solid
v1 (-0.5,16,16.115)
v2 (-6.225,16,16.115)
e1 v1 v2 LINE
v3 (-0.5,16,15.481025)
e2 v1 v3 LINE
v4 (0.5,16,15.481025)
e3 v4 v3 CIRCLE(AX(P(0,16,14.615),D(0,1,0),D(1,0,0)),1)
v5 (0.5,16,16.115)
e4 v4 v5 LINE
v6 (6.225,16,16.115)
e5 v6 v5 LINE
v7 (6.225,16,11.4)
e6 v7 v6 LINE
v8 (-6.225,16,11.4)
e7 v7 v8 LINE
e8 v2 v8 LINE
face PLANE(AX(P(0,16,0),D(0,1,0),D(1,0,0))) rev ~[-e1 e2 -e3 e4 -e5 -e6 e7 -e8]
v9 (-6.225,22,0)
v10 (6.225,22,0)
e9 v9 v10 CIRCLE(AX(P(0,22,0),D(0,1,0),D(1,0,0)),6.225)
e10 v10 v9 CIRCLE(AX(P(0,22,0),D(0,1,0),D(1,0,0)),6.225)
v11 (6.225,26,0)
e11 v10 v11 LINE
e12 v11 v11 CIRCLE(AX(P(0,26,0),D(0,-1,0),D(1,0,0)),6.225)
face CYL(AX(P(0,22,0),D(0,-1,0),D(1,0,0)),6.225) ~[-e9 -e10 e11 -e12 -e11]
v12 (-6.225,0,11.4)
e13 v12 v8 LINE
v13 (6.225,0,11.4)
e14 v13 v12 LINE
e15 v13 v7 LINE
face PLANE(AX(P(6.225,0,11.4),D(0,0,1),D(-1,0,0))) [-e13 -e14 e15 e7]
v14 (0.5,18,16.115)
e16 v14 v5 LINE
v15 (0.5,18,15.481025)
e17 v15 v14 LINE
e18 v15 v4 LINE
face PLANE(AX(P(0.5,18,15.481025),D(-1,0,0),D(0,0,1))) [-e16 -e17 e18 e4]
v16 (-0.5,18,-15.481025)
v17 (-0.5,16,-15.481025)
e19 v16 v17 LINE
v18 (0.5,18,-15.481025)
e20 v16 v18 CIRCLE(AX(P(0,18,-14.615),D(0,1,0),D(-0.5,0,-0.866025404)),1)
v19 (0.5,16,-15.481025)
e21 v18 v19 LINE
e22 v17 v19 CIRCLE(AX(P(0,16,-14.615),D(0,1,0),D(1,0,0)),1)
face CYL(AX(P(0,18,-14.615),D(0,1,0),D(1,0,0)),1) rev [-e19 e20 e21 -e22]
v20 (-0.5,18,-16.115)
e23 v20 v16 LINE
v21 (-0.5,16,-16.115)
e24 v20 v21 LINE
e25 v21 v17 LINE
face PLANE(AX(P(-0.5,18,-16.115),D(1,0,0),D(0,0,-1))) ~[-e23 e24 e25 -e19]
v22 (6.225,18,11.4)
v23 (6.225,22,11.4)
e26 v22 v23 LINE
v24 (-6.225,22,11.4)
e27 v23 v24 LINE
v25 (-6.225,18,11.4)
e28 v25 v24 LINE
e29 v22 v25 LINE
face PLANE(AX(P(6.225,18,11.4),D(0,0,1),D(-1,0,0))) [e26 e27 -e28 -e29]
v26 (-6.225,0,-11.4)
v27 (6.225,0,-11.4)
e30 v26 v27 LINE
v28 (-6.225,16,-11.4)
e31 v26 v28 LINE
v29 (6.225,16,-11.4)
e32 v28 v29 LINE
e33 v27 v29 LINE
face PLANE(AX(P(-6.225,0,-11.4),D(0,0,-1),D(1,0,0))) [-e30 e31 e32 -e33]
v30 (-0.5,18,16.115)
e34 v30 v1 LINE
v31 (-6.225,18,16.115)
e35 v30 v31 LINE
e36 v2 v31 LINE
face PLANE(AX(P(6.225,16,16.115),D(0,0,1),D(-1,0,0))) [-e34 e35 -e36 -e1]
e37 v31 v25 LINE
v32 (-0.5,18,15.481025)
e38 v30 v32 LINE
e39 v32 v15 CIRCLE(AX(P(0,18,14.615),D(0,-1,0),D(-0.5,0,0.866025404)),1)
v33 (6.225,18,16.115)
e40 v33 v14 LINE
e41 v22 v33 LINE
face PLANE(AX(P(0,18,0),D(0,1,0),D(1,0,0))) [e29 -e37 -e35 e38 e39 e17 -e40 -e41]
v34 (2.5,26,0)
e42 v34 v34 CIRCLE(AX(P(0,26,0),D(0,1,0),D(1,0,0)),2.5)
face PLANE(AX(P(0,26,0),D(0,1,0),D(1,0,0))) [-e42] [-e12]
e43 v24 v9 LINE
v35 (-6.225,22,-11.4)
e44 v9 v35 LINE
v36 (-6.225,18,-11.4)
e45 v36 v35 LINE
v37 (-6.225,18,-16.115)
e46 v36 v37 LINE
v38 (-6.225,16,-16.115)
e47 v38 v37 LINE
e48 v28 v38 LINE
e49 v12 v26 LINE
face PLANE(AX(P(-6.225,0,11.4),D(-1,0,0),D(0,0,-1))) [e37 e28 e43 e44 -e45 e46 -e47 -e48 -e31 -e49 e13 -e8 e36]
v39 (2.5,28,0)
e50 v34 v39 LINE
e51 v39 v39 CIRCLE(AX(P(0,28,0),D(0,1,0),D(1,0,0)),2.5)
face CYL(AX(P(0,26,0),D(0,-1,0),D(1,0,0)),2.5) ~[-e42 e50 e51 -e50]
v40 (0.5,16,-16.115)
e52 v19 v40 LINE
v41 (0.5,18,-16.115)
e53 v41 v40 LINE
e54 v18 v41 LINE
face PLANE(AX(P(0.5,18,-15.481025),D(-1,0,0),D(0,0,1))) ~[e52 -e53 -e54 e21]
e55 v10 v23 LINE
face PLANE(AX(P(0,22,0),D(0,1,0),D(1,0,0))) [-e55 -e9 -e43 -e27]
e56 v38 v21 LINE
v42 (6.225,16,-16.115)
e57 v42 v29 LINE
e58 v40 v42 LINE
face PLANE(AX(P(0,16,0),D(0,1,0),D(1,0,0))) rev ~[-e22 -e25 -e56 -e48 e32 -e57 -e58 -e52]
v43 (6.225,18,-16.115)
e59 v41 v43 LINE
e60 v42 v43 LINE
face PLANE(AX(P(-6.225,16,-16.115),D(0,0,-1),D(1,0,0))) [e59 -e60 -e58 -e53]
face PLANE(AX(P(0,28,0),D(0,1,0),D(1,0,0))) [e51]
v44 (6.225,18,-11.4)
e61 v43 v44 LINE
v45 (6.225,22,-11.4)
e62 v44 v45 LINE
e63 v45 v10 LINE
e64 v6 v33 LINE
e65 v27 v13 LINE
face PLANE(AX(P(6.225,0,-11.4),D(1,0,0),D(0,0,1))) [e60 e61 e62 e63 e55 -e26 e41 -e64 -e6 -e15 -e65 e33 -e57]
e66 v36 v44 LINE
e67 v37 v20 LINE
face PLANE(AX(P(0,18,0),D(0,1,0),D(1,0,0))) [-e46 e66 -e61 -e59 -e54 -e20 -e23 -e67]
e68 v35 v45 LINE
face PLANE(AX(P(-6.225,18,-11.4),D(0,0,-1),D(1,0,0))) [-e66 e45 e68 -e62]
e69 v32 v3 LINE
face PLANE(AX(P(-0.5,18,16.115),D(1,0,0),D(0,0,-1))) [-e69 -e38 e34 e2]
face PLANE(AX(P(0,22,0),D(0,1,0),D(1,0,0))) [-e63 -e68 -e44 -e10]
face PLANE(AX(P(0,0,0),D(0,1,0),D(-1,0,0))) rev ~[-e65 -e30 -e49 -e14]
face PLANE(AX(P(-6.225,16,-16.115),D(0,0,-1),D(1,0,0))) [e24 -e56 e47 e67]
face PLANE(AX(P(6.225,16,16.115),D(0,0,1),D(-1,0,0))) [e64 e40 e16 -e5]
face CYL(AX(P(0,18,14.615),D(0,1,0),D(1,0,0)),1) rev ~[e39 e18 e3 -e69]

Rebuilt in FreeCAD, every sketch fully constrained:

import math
import FreeCAD as App
import Part
import Sketcher

V = App.Vector
Q = App.Units.Quantity


def add_polygon(sketch, points):
    """Adds a closed chain of lines whose ends are joined by coincident constraints."""
    first, n = sketch.GeometryCount, len(points)
    for a, b in zip(points, points[1:] + points[:1]):
        sketch.addGeometry(Part.LineSegment(App.Vector(*a, 0), App.Vector(*b, 0)), False)
    for i in range(n):
        sketch.addConstraint(Sketcher.Constraint("Coincident", first + i, 2, first + (i + 1) % n, 1))

doc = App.newDocument("Part")
body = doc.addObject("PartDesign::Body", "Body")

sketch1 = body.newObject("Sketcher::SketchObject", "Sketch")
sketch1.AttachmentSupport = (doc.getObject("XZ_Plane"), [""])
sketch1.MapMode = "FlatFace"
add_polygon(sketch1, [(6, -11), (-6, -11), (-6, 11), (6, 11)])
sketch1.addConstraint(Sketcher.Constraint("Horizontal", 0))
sketch1.addConstraint(Sketcher.Constraint("Vertical", 1))
sketch1.addConstraint(Sketcher.Constraint("Horizontal", 2))
sketch1.addConstraint(Sketcher.Constraint("Vertical", 3))
sketch1.addConstraint(Sketcher.Constraint("Symmetric", 0, 2, 2, 2, -1, 1))
sketch1.addConstraint(Sketcher.Constraint("DistanceY", 1, 1, 1, 2, Q("22.8 mm")))
sketch1.addConstraint(Sketcher.Constraint("DistanceX", 0, 2, 0, 1, Q("12.45 mm")))
pad1 = body.newObject("PartDesign::Pad", "Pad")
pad1.Profile = sketch1
pad1.Length = 16
pad1.Reversed = True

sketch2 = body.newObject("Sketcher::SketchObject", "Sketch001")
sketch2.AttachmentSupport = (doc.getObject("XZ_Plane"), [""])
sketch2.MapMode = "FlatFace"
sketch2.AttachmentOffset = App.Placement(V(0, 0, -16), App.Rotation())
add_polygon(sketch2, [(-6, -16), (-6, 16), (6, 16), (6, -16)])
sketch2.addConstraint(Sketcher.Constraint("Vertical", 0))
sketch2.addConstraint(Sketcher.Constraint("Horizontal", 1))
sketch2.addConstraint(Sketcher.Constraint("Vertical", 2))
sketch2.addConstraint(Sketcher.Constraint("Horizontal", 3))
sketch2.addConstraint(Sketcher.Constraint("Symmetric", 0, 2, 2, 2, -1, 1))
sketch2.addConstraint(Sketcher.Constraint("DistanceY", 0, 1, 0, 2, Q("32.23 mm")))
sketch2.addConstraint(Sketcher.Constraint("DistanceX", 1, 1, 1, 2, Q("12.45 mm")))
pad2 = body.newObject("PartDesign::Pad", "Pad001")
pad2.Profile = sketch2
pad2.Length = 2
pad2.Reversed = True

sketch3 = body.newObject("Sketcher::SketchObject", "Sketch002")
sketch3.AttachmentSupport = (doc.getObject("XZ_Plane"), [""])
sketch3.MapMode = "FlatFace"
sketch3.AttachmentOffset = App.Placement(V(0, 0, -18), App.Rotation())
add_polygon(sketch3, [(6, -11), (-6, -11), (-6, 11), (6, 11)])
sketch3.addConstraint(Sketcher.Constraint("Horizontal", 0))
sketch3.addConstraint(Sketcher.Constraint("Vertical", 1))
sketch3.addConstraint(Sketcher.Constraint("Horizontal", 2))
sketch3.addConstraint(Sketcher.Constraint("Vertical", 3))
sketch3.addConstraint(Sketcher.Constraint("Symmetric", 0, 2, 2, 2, -1, 1))
sketch3.addConstraint(Sketcher.Constraint("DistanceY", 1, 1, 1, 2, Q("22.8 mm")))
sketch3.addConstraint(Sketcher.Constraint("DistanceX", 0, 2, 0, 1, Q("12.45 mm")))
pad3 = body.newObject("PartDesign::Pad", "Pad002")
pad3.Profile = sketch3
pad3.Length = 4
pad3.Reversed = True

sketch4 = body.newObject("Sketcher::SketchObject", "Sketch003")
sketch4.AttachmentSupport = (doc.getObject("XZ_Plane"), [""])
sketch4.MapMode = "FlatFace"
sketch4.AttachmentOffset = App.Placement(V(0, 0, -22), App.Rotation())
sketch4.addGeometry(Part.Circle(V(0, 0, 0), V(0, 0, 1), 6), False)
sketch4.addConstraint(Sketcher.Constraint("Coincident", 0, 3, -1, 1))
sketch4.addConstraint(Sketcher.Constraint("Diameter", 0, Q("12.45 mm")))
pad4 = body.newObject("PartDesign::Pad", "Pad003")
pad4.Profile = sketch4
pad4.Length = 4
pad4.Reversed = True

sketch5 = body.newObject("Sketcher::SketchObject", "Sketch004")
sketch5.AttachmentSupport = (doc.getObject("XZ_Plane"), [""])
sketch5.MapMode = "FlatFace"
sketch5.AttachmentOffset = App.Placement(V(0, 0, -18), App.Rotation())
sketch5.addGeometry(Part.LineSegment(V(-0.5, 15.5, 0), V(-0.5, 16.1, 0)), False)
sketch5.addGeometry(Part.LineSegment(V(-0.5, 16.1, 0), V(0.5, 16.1, 0)), False)
sketch5.addGeometry(Part.LineSegment(V(0.5, 16.1, 0), V(0.5, 15.5, 0)), False)
sketch5.addGeometry(Part.ArcOfCircle(Part.Circle(V(0, 14.6, 0), V(0, 0, 1), 1), math.radians(120), math.radians(420)), False)
sketch5.addConstraint(Sketcher.Constraint("Coincident", 0, 2, 1, 1))
sketch5.addConstraint(Sketcher.Constraint("Coincident", 1, 2, 2, 1))
sketch5.addConstraint(Sketcher.Constraint("Coincident", 2, 2, 3, 2))
sketch5.addConstraint(Sketcher.Constraint("Coincident", 3, 1, 0, 1))
sketch5.addConstraint(Sketcher.Constraint("Vertical", 0))
sketch5.addConstraint(Sketcher.Constraint("Horizontal", 1))
sketch5.addConstraint(Sketcher.Constraint("Vertical", 2))
sketch5.addConstraint(Sketcher.Constraint("Symmetric", 2, 2, 3, 1, -2))
sketch5.addConstraint(Sketcher.Constraint("Radius", 3, Q("1 mm")))
sketch5.addConstraint(Sketcher.Constraint("DistanceX", 1, 1, 1, 2, Q("1 mm")))
sketch5.addConstraint(Sketcher.Constraint("DistanceY", 3, 3, 0, 2, Q("1.5 mm")))
sketch5.addConstraint(Sketcher.Constraint("DistanceY", -1, 1, 3, 3, Q("14.615 mm")))
pocket1 = body.newObject("PartDesign::Pocket", "Pocket")
pocket1.Profile = sketch5
pocket1.Length = 4
pocket1.Reversed = True
doc.recompute()

mirrored = body.newObject("PartDesign::Mirrored", "Mirrored")
mirrored.Originals = [pocket1]
mirrored.MirrorPlane = (doc.getObject("XY_Plane"), [""])
body.Tip = mirrored

sketch6 = body.newObject("Sketcher::SketchObject", "Sketch005")
sketch6.AttachmentSupport = (doc.getObject("XZ_Plane"), [""])
sketch6.MapMode = "FlatFace"
sketch6.AttachmentOffset = App.Placement(V(0, 0, -26), App.Rotation())
sketch6.addGeometry(Part.Circle(V(0, 0, 0), V(0, 0, 1), 2.5), False)
sketch6.addConstraint(Sketcher.Constraint("Coincident", 0, 3, -1, 1))
sketch6.addConstraint(Sketcher.Constraint("Diameter", 0, Q("5 mm")))
pad5 = body.newObject("PartDesign::Pad", "Pad004")
pad5.Profile = sketch6
pad5.Length = 2
pad5.Reversed = True

doc.recompute()
